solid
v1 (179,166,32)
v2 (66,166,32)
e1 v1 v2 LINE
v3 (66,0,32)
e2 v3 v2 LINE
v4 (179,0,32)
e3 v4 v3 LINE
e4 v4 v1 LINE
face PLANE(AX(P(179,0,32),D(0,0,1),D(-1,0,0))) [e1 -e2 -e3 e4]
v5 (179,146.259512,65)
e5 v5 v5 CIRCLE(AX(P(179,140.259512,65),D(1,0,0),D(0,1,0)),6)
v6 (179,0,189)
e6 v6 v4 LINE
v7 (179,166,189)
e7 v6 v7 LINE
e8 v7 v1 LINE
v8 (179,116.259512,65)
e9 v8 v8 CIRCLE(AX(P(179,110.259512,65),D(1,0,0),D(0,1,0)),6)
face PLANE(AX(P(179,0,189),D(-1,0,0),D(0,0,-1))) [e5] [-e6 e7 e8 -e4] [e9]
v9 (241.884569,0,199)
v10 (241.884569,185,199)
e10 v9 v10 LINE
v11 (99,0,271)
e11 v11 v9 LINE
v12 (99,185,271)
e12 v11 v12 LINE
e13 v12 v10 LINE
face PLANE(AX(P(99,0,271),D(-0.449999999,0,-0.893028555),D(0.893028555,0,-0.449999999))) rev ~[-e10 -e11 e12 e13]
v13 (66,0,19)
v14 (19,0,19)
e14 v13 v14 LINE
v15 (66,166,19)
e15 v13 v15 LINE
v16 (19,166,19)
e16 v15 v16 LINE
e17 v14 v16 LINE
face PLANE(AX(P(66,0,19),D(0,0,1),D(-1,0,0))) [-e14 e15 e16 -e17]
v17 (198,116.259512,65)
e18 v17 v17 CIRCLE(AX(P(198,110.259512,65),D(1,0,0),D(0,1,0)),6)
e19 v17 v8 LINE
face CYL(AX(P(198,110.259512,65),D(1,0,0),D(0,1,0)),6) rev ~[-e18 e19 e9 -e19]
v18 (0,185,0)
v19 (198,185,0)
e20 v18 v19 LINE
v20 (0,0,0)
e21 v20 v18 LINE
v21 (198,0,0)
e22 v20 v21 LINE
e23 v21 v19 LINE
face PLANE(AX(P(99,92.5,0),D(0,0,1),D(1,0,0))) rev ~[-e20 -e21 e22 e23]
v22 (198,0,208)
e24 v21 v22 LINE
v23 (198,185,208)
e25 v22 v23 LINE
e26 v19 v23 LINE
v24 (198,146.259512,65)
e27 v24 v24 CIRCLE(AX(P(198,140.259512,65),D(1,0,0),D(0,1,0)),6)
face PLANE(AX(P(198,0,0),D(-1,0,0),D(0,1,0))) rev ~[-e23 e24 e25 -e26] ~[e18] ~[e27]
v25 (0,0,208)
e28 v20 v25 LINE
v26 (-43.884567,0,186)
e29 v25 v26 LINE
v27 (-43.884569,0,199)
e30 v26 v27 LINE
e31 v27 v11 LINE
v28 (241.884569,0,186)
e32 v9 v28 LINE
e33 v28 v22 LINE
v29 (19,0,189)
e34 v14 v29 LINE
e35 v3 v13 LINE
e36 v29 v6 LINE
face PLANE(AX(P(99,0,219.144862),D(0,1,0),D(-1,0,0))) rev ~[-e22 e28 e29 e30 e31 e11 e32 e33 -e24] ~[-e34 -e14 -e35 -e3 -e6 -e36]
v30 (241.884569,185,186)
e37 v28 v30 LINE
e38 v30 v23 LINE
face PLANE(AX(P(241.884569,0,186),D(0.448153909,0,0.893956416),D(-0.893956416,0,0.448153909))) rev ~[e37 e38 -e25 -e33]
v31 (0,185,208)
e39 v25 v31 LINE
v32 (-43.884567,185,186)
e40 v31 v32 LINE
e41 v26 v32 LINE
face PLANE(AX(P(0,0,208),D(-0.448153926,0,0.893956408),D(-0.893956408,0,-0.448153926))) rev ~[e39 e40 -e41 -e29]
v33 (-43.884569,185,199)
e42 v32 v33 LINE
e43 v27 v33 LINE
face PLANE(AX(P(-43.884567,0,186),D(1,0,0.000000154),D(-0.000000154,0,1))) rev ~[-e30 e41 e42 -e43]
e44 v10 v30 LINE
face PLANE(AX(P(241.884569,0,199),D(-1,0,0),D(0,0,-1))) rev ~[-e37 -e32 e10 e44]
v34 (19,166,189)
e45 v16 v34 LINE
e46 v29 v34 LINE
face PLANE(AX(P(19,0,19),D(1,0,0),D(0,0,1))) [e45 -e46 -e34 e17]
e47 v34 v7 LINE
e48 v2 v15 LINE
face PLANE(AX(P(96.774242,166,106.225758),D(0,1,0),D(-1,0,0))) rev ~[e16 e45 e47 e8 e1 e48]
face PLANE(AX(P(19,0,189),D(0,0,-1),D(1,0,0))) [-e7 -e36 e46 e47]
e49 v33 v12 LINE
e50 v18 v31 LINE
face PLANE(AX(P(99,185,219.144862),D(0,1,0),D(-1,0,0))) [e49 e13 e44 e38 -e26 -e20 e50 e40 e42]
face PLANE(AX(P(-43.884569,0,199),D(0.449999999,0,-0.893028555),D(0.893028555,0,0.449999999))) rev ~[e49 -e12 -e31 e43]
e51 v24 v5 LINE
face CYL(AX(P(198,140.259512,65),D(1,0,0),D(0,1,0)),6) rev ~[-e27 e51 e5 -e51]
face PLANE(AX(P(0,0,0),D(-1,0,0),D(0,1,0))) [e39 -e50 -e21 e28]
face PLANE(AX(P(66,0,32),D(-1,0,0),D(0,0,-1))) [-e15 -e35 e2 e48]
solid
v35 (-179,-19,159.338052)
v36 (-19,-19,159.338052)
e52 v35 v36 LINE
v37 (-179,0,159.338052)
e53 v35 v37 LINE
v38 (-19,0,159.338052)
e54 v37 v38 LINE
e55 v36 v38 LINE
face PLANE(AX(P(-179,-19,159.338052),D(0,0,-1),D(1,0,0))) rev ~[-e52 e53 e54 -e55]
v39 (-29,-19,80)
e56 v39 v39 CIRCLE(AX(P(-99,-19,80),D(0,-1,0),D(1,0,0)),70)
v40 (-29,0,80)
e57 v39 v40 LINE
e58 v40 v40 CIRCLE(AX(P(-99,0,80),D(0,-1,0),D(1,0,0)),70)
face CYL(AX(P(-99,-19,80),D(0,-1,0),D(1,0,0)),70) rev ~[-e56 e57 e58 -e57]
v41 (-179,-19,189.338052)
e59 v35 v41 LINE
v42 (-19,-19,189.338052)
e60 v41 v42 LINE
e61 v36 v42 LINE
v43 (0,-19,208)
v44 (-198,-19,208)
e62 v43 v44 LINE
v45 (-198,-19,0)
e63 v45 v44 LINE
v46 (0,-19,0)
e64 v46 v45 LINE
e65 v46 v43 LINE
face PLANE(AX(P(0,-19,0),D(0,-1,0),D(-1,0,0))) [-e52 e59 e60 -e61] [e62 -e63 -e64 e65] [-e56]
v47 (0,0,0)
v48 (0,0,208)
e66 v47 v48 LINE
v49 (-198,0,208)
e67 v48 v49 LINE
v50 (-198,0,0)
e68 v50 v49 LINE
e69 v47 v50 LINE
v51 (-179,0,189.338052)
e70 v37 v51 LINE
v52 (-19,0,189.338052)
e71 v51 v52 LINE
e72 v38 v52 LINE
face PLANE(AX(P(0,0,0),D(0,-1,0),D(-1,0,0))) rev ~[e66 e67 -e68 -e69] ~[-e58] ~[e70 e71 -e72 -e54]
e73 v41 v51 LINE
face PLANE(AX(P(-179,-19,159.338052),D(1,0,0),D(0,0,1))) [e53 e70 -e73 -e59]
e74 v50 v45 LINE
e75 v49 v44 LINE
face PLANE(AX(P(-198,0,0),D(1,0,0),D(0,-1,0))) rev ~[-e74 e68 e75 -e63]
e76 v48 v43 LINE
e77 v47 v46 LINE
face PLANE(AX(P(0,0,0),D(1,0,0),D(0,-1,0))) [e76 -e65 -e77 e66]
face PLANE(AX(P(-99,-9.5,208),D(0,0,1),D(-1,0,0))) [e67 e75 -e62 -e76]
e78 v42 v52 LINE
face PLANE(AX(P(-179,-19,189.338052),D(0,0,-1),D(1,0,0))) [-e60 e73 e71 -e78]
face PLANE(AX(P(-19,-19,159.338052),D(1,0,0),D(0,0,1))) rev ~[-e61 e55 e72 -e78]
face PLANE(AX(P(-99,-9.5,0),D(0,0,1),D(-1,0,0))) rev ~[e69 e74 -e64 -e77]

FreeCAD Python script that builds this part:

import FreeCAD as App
import Part
import Sketcher

V = App.Vector
Q = App.Units.Quantity

doc = App.newDocument("Part")
params = doc.addObject("Spreadsheet::Sheet", "Params")
for row, (alias, value) in enumerate([
    ("sketch1_width", "198 mm"),
    ("sketch1_height", "185 mm"),
    ("pad1_length", "208 mm"),
    ("sketch2_width", "47 mm"),
    ("sketch2_width2", "113 mm"),
    ("sketch2_height", "170 mm"),
    ("sketch2_height2", "13 mm"),
    ("pocket1_length", "166 mm"),
    ("sketch3_diameter", "12 mm"),
    ("pocket2_length", "25 mm"),
    ("sketch4_width", "198 mm"),
    ("sketch4_height", "13 mm"),
    ("sketch4_length", "160 mm"),
    ("pad2_length", "185 mm"),
    ("sketch5_width", "198 mm"),
    ("sketch5_height", "19 mm"),
    ("pad3_length", "208 mm"),
    ("sketch6_diameter", "140 mm"),
    ("sketch6_width", "160 mm"),
    ("sketch6_height", "30 mm"),
    ("pocket3_length", "19 mm"),
], start=1):
    params.set(f"A{row}", alias)
    params.set(f"B{row}", "=" + value)
    params.setAlias(f"B{row}", alias)

body = doc.addObject("PartDesign::Body", "Body")

# Sketch on XY plane
sketch1 = doc.addObject("Sketcher::SketchObject", "Sketch")
body.addObject(sketch1)
sketch1.AttachmentSupport = (doc.XY_Plane, [""])
sketch1.MapMode = "FlatFace"
sketch1.addGeometry([
    Part.LineSegment(V(0, 185, 0), V(0, 0, 0)),
    Part.LineSegment(V(0, 0, 0), V(198, 0, 0)),
    Part.LineSegment(V(198, 0, 0), V(198, 185, 0)),
    Part.LineSegment(V(198, 185, 0), V(0, 185, 0)),
], False)
sketch1.addConstraint([
    Sketcher.Constraint("Coincident", 0, 2, 1, 1),
    Sketcher.Constraint("Coincident", 1, 2, 2, 1),
    Sketcher.Constraint("Coincident", 2, 2, 3, 1),
    Sketcher.Constraint("Coincident", 3, 2, 0, 1),
    Sketcher.Constraint("Vertical", 0),
    Sketcher.Constraint("Horizontal", 1),
    Sketcher.Constraint("Vertical", 2),
    Sketcher.Constraint("Horizontal", 3),
    Sketcher.Constraint("Coincident", 0, 2, -1, 1),
    Sketcher.Constraint("DistanceX", 1, 1, 1, 2, 198.0),
    Sketcher.Constraint("DistanceY", 0, 2, 0, 1, 185.0),
])
sketch1.setExpression("Constraints[9]", "Params.sketch1_width")
sketch1.setExpression("Constraints[10]", "Params.sketch1_height")
pad1 = doc.addObject("PartDesign::Pad", "Pad")
body.addObject(pad1)
pad1.Profile = sketch1
pad1.setExpression("Length", "Params.pad1_length")

# Sketch on XZ plane
sketch2 = doc.addObject("Sketcher::SketchObject", "Sketch001")
body.addObject(sketch2)
sketch2.AttachmentSupport = (doc.XZ_Plane, [""])
sketch2.MapMode = "FlatFace"
sketch2.addGeometry([
    Part.LineSegment(V(19, 189, 0), V(19, 19, 0)),  # 0
    Part.LineSegment(V(19, 19, 0), V(66, 19, 0)),  # 1
    Part.LineSegment(V(66, 19, 0), V(66, 32, 0)),  # 2
    Part.LineSegment(V(66, 32, 0), V(179, 32, 0)),  # 3
    Part.LineSegment(V(179, 32, 0), V(179, 189, 0)),  # 4
    Part.LineSegment(V(179, 189, 0), V(19, 189, 0)),  # 5
], False)
sketch2.addConstraint([
    Sketcher.Constraint("Coincident", 0, 2, 1, 1),
    Sketcher.Constraint("Coincident", 1, 2, 2, 1),
    Sketcher.Constraint("Coincident", 2, 2, 3, 1),
    Sketcher.Constraint("Coincident", 3, 2, 4, 1),
    Sketcher.Constraint("Coincident", 4, 2, 5, 1),
    Sketcher.Constraint("Coincident", 5, 2, 0, 1),
    Sketcher.Constraint("Vertical", 0),
    Sketcher.Constraint("Horizontal", 1),
    Sketcher.Constraint("Vertical", 2),
    Sketcher.Constraint("Horizontal", 3),
    Sketcher.Constraint("Vertical", 4),
    Sketcher.Constraint("Horizontal", 5),
    Sketcher.Constraint("DistanceX", 1, 1, 1, 2, 47.0),
    Sketcher.Constraint("DistanceX", 3, 1, 3, 2, 113.0),
    Sketcher.Constraint("DistanceY", 0, 2, 0, 1, 170.0),
    Sketcher.Constraint("DistanceY", 2, 1, 2, 2, 13.0),
    Sketcher.Constraint("DistanceX", -1, 1, 0, 2, 19.0),
    Sketcher.Constraint("DistanceY", -1, 1, 0, 2, 19.0),
])
sketch2.setExpression("Constraints[12]", "Params.sketch2_width")
sketch2.setExpression("Constraints[13]", "Params.sketch2_width2")
sketch2.setExpression("Constraints[14]", "Params.sketch2_height")
sketch2.setExpression("Constraints[15]", "Params.sketch2_height2")
pocket1 = doc.addObject("PartDesign::Pocket", "Pocket")
body.addObject(pocket1)
pocket1.Profile = sketch2
pocket1.setExpression("Length", "Params.pocket1_length")

# Sketch on YZ plane
sketch3 = doc.addObject("Sketcher::SketchObject", "Sketch002")
body.addObject(sketch3)
sketch3.AttachmentSupport = (doc.YZ_Plane, [""])
sketch3.MapMode = "FlatFace"
sketch3.AttachmentOffset = App.Placement(V(0, 0, 198), App.Rotation())
sketch3.addGeometry([
    Part.Circle(V(110, 65, 0), V(0, 0, 1), 6),
    Part.Circle(V(140, 65, 0), V(0, 0, 1), 6),
], False)
sketch3.addConstraint([
    Sketcher.Constraint("Equal", 0, 1),
    Sketcher.Constraint("Horizontal", 0, 3, 1, 3),
    Sketcher.Constraint("Diameter", 0, 12.0),
    Sketcher.Constraint("DistanceY", -1, 1, 0, 3, 65.0),
    Sketcher.Constraint("DistanceX", 0, 3, 1, 3, 30.0),
    Sketcher.Constraint("DistanceX", -1, 1, 0, 3, 110.259512),
])
sketch3.setExpression("Constraints[2]", "Params.sketch3_diameter")
pocket2 = doc.addObject("PartDesign::Pocket", "Pocket001")
body.addObject(pocket2)
pocket2.Profile = sketch3
pocket2.setExpression("Length", "Params.pocket2_length")

# Sketch on XZ plane
sketch4 = doc.addObject("Sketcher::SketchObject", "Sketch003")
body.addObject(sketch4)
sketch4.AttachmentSupport = (doc.XZ_Plane, [""])
sketch4.MapMode = "FlatFace"
sketch4.addGeometry([
    Part.LineSegment(V(-44, 199, 0), V(-44, 186, 0)),  # 0
    Part.LineSegment(V(-44, 186, 0), V(0, 208, 0)),  # 1
    Part.LineSegment(V(0, 208, 0), V(198, 208, 0)),  # 2
    Part.LineSegment(V(198, 208, 0), V(242, 186, 0)),  # 3
    Part.LineSegment(V(242, 186, 0), V(242, 199, 0)),  # 4
    Part.LineSegment(V(242, 199, 0), V(99, 271, 0)),  # 5
    Part.LineSegment(V(99, 271, 0), V(-44, 199, 0)),  # 6
], False)
sketch4.addConstraint([
    Sketcher.Constraint("Coincident", 0, 2, 1, 1),
    Sketcher.Constraint("Coincident", 1, 2, 2, 1),
    Sketcher.Constraint("Coincident", 2, 2, 3, 1),
    Sketcher.Constraint("Coincident", 3, 2, 4, 1),
    Sketcher.Constraint("Coincident", 4, 2, 5, 1),
    Sketcher.Constraint("Coincident", 5, 2, 6, 1),
    Sketcher.Constraint("Coincident", 6, 2, 0, 1),
    Sketcher.Constraint("Horizontal", 2),
    Sketcher.Constraint("Vertical", 4),
    Sketcher.Constraint("PointOnObject", 1, 2, -2),
    Sketcher.Constraint("Horizontal", 0, 2, 3, 2),
    Sketcher.Constraint("Horizontal", 4, 2, 6, 2),
    Sketcher.Constraint("Equal", 1, 3),
    Sketcher.Constraint("Equal", 5, 6),
    Sketcher.Constraint("DistanceX", 2, 1, 2, 2, 198.0),
    Sketcher.Constraint("DistanceY", 4, 1, 4, 2, 13.0),
    Sketcher.Constraint("Angle", 0, Q("-89.999991 deg")),
    Sketcher.Constraint("Distance", 5, 160.0),
    Sketcher.Constraint("DistanceY", -1, 1, 0, 2, 186.0),
    Sketcher.Constraint("DistanceY", -1, 1, 1, 2, 208.0),
    Sketcher.Constraint("DistanceY", -1, 1, 5, 2, 271.0),
])
sketch4.setExpression("Constraints[14]", "Params.sketch4_width")
sketch4.setExpression("Constraints[15]", "Params.sketch4_height")
sketch4.setExpression("Constraints[17]", "Params.sketch4_length")
pad2 = doc.addObject("PartDesign::Pad", "Pad001")
body.addObject(pad2)
pad2.Profile = sketch4
pad2.setExpression("Length", "Params.pad2_length")
pad2.Reversed = True
body2 = doc.addObject("PartDesign::Body", "Body001")

# Sketch on XY plane
sketch5 = doc.addObject("Sketcher::SketchObject", "Sketch004")
body2.addObject(sketch5)
sketch5.AttachmentSupport = (doc.getObject("XY_Plane001"), [""])
sketch5.MapMode = "FlatFace"
sketch5.addGeometry([
    Part.LineSegment(V(0, -19, 0), V(0, 0, 0)),
    Part.LineSegment(V(0, 0, 0), V(-198, 0, 0)),
    Part.LineSegment(V(-198, 0, 0), V(-198, -19, 0)),
    Part.LineSegment(V(-198, -19, 0), V(0, -19, 0)),
], False)
sketch5.addConstraint([
    Sketcher.Constraint("Coincident", 0, 2, 1, 1),
    Sketcher.Constraint("Coincident", 1, 2, 2, 1),
    Sketcher.Constraint("Coincident", 2, 2, 3, 1),
    Sketcher.Constraint("Coincident", 3, 2, 0, 1),
    Sketcher.Constraint("Vertical", 0),
    Sketcher.Constraint("Horizontal", 1),
    Sketcher.Constraint("Vertical", 2),
    Sketcher.Constraint("Horizontal", 3),
    Sketcher.Constraint("Coincident", 0, 2, -1, 1),
    Sketcher.Constraint("DistanceX", 1, 2, 1, 1, 198.0),
    Sketcher.Constraint("DistanceY", 0, 1, 0, 2, 19.0),
])
sketch5.setExpression("Constraints[9]", "Params.sketch5_width")
sketch5.setExpression("Constraints[10]", "Params.sketch5_height")
pad3 = doc.addObject("PartDesign::Pad", "Pad002")
body2.addObject(pad3)
pad3.Profile = sketch5
pad3.setExpression("Length", "Params.pad3_length")

# Sketch on XZ plane
sketch6 = doc.addObject("Sketcher::SketchObject", "Sketch005")
body2.addObject(sketch6)
sketch6.AttachmentSupport = (doc.getObject("XZ_Plane001"), [""])
sketch6.MapMode = "FlatFace"
sketch6.AttachmentOffset = App.Placement(V(0, 0, 19), App.Rotation())
sketch6.addGeometry([
    Part.Circle(V(-99, 80, 0), V(0, 0, 1), 70),  # 0
    Part.LineSegment(V(-179, 189, 0), V(-179, 159, 0)),  # 1
    Part.LineSegment(V(-179, 159, 0), V(-19, 159, 0)),  # 2
    Part.LineSegment(V(-19, 159, 0), V(-19, 189, 0)),  # 3
    Part.LineSegment(V(-19, 189, 0), V(-179, 189, 0)),  # 4
], False)
sketch6.addConstraint([
    Sketcher.Constraint("Coincident", 1, 2, 2, 1),
    Sketcher.Constraint("Coincident", 2, 2, 3, 1),
    Sketcher.Constraint("Coincident", 3, 2, 4, 1),
    Sketcher.Constraint("Coincident", 4, 2, 1, 1),
    Sketcher.Constraint("Vertical", 1),
    Sketcher.Constraint("Horizontal", 2),
    Sketcher.Constraint("Vertical", 3),
    Sketcher.Constraint("Horizontal", 4),
    Sketcher.Constraint("Diameter", 0, 140.0),
    Sketcher.Constraint("DistanceX", 2, 1, 2, 2, 160.0),
    Sketcher.Constraint("DistanceY", 1, 2, 1, 1, 30.0),
    Sketcher.Constraint("DistanceX", 0, 3, -1, 1, 99.0),
    Sketcher.Constraint("DistanceY", -1, 1, 0, 3, 80.0),
    Sketcher.Constraint("DistanceX", 1, 2, -1, 1, 179.0),
    Sketcher.Constraint("DistanceY", -1, 1, 1, 2, 159.338052),
])
sketch6.setExpression("Constraints[8]", "Params.sketch6_diameter")
sketch6.setExpression("Constraints[9]", "Params.sketch6_width")
sketch6.setExpression("Constraints[10]", "Params.sketch6_height")
pocket3 = doc.addObject("PartDesign::Pocket", "Pocket002")
body2.addObject(pocket3)
pocket3.Profile = sketch6
pocket3.setExpression("Length", "Params.pocket3_length")

doc.recompute()
